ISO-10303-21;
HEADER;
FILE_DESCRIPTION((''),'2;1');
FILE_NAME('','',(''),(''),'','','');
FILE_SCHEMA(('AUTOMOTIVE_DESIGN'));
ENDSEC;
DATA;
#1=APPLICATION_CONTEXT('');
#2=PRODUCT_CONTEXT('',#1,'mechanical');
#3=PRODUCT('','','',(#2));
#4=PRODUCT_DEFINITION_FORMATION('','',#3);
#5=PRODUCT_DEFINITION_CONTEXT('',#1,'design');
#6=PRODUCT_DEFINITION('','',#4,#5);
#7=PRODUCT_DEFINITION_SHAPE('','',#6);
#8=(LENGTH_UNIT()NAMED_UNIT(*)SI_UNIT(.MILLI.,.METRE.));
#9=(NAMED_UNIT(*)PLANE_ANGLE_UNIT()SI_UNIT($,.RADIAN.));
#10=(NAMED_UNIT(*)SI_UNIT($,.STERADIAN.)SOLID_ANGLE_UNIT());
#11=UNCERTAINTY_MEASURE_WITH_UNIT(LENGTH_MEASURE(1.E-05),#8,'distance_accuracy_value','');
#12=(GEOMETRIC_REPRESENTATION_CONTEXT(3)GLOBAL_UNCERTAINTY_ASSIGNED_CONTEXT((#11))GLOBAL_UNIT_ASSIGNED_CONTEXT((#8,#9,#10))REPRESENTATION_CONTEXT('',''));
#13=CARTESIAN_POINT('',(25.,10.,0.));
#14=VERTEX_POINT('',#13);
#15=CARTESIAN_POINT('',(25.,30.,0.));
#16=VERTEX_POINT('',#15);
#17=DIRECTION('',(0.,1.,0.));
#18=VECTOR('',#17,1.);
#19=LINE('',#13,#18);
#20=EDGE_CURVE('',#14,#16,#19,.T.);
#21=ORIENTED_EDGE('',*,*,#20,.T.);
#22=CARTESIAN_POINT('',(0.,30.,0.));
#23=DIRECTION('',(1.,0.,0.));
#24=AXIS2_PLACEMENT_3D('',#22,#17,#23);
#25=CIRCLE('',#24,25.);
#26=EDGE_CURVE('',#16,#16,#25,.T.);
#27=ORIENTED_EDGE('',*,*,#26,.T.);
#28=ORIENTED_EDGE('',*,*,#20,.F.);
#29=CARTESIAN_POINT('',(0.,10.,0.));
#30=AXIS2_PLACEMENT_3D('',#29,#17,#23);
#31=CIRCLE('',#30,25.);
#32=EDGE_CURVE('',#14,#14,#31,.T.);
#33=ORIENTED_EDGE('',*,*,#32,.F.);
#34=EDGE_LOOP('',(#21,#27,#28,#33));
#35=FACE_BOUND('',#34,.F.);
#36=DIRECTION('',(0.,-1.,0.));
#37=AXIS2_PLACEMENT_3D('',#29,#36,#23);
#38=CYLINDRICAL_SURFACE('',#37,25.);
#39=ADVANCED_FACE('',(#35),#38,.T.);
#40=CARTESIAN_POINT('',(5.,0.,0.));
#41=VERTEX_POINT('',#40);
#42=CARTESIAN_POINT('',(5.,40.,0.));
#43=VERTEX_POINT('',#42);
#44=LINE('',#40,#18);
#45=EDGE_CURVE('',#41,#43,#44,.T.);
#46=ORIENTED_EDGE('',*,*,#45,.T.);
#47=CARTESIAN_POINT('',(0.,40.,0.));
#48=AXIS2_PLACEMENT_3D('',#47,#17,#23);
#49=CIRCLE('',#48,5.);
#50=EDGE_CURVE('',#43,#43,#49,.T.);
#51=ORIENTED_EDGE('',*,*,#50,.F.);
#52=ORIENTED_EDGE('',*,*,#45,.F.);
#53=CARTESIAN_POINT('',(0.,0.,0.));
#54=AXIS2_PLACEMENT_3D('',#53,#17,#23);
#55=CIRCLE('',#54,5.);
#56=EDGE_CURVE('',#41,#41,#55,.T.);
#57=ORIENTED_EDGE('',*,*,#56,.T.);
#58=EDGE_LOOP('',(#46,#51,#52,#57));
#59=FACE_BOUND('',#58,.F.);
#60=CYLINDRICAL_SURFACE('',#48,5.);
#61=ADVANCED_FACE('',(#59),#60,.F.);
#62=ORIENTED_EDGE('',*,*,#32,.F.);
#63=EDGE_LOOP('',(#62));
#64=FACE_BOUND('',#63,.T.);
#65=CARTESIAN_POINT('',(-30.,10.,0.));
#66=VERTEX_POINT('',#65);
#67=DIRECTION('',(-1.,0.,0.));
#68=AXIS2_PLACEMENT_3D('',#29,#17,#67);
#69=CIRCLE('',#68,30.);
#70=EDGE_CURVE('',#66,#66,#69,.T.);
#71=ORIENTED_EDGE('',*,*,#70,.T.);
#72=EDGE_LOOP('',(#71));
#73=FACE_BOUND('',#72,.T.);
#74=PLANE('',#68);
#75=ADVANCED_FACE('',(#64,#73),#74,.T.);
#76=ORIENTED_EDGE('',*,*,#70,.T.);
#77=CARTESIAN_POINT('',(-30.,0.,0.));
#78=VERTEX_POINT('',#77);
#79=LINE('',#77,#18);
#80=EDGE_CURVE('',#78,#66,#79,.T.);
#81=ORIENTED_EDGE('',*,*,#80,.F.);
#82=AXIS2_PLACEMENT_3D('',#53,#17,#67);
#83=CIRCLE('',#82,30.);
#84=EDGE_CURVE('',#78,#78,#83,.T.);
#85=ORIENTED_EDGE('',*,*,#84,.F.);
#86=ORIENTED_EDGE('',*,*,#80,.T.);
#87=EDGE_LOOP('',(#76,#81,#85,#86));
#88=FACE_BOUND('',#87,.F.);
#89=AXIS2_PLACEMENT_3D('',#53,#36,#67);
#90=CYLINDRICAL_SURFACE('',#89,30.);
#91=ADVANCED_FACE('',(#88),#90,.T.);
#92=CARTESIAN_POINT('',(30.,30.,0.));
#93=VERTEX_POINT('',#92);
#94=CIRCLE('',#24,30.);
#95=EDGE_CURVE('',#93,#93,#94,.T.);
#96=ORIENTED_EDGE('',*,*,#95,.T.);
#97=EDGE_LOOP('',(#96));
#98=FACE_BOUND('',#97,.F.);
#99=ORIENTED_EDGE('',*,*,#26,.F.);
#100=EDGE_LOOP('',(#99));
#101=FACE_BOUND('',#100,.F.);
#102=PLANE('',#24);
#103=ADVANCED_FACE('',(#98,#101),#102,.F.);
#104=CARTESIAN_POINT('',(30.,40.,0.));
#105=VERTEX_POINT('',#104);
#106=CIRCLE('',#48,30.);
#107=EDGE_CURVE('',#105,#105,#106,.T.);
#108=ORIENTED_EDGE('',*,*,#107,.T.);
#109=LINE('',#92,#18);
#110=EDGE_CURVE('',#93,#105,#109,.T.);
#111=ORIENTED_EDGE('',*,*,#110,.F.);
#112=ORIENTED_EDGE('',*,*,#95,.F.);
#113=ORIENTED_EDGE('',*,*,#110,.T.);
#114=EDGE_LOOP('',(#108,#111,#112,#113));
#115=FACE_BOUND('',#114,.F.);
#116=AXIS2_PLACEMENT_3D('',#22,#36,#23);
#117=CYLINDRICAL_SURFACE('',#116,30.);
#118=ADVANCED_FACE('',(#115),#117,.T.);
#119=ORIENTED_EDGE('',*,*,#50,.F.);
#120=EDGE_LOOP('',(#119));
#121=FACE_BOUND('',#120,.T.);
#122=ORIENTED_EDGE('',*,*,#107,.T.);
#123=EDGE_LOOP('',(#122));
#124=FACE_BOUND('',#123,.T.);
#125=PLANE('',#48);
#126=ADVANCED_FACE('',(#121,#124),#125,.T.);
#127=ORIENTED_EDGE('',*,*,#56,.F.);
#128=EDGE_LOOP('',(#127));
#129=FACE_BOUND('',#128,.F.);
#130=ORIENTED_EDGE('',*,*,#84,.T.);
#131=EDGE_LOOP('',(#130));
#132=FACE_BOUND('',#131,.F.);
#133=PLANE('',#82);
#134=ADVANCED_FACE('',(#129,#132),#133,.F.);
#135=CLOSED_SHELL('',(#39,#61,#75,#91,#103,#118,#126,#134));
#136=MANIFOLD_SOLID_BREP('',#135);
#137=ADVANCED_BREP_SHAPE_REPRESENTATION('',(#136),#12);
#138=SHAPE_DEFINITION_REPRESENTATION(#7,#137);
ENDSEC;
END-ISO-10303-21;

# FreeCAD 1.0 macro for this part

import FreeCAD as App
import Part
import Sketcher
from FreeCAD import Vector
Q = App.Units.Quantity

doc = App.newDocument("Part")
body = doc.addObject("PartDesign::Body", "Body")

# Sketch on XZ plane
sketch1 = body.newObject("Sketcher::SketchObject", "Sketch")
sketch1.AttachmentSupport = (doc.getObject("XZ_Plane"), [""])
sketch1.MapMode = "FlatFace"
sketch1.addGeometry(Part.Circle(Vector(0, 0, 0), Vector(0, 0, 1), 30), False)
sketch1.addConstraint(Sketcher.Constraint("Coincident", 0, 3, -1, 1))
sketch1.addConstraint(Sketcher.Constraint("Diameter", 0, Q("60 mm")))
pad1 = body.newObject("PartDesign::Pad", "Pad")
pad1.Profile = sketch1
pad1.Length = 10
pad1.Reversed = True

# Sketch on XZ plane
sketch2 = body.newObject("Sketcher::SketchObject", "Sketch001")
sketch2.AttachmentSupport = (doc.getObject("XZ_Plane"), [""])
sketch2.MapMode = "FlatFace"
sketch2.AttachmentOffset = App.Placement(Vector(0, 0, -10), App.Rotation())
sketch2.addGeometry(Part.Circle(Vector(0, 0, 0), Vector(0, 0, 1), 5), False)
sketch2.addConstraint(Sketcher.Constraint("Coincident", 0, 3, -1, 1))
sketch2.addConstraint(Sketcher.Constraint("Diameter", 0, Q("10 mm")))
pocket1 = body.newObject("PartDesign::Pocket", "Pocket")
pocket1.Profile = sketch2
pocket1.Type = "ThroughAll"
pocket1.Reversed = True

# Sketch on XZ plane
sketch3 = body.newObject("Sketcher::SketchObject", "Sketch002")
sketch3.AttachmentSupport = (doc.getObject("XZ_Plane"), [""])
sketch3.MapMode = "FlatFace"
sketch3.AttachmentOffset = App.Placement(Vector(0, 0, -10), App.Rotation())
sketch3.addGeometry(Part.Circle(Vector(0, 0, 0), Vector(0, 0, 1), 25), False)
sketch3.addConstraint(Sketcher.Constraint("Coincident", 0, 3, -1, 1))
sketch3.addConstraint(Sketcher.Constraint("Diameter", 0, Q("50 mm")))
pad2 = body.newObject("PartDesign::Pad", "Pad001")
pad2.Profile = sketch3
pad2.Length = 20
pad2.Reversed = True

# Sketch on XZ plane
sketch4 = body.newObject("Sketcher::SketchObject", "Sketch003")
sketch4.AttachmentSupport = (doc.getObject("XZ_Plane"), [""])
sketch4.MapMode = "FlatFace"
sketch4.AttachmentOffset = App.Placement(Vector(0, 0, -30), App.Rotation())
sketch4.addGeometry(Part.Circle(Vector(0, 0, 0), Vector(0, 0, 1), 30), False)
sketch4.addConstraint(Sketcher.Constraint("Coincident", 0, 3, -1, 1))
sketch4.addConstraint(Sketcher.Constraint("Diameter", 0, Q("60 mm")))
pad3 = body.newObject("PartDesign::Pad", "Pad002")
pad3.Profile = sketch4
pad3.Length = 10
pad3.Reversed = True

# Sketch on XZ plane
sketch5 = body.newObject("Sketcher::SketchObject", "Sketch004")
sketch5.AttachmentSupport = (doc.getObject("XZ_Plane"), [""])
sketch5.MapMode = "FlatFace"
sketch5.AttachmentOffset = App.Placement(Vector(0, 0, -40), App.Rotation())
sketch5.addGeometry(Part.Circle(Vector(0, 0, 0), Vector(0, 0, 1), 5), False)
sketch5.addConstraint(Sketcher.Constraint("Coincident", 0, 3, -1, 1))
sketch5.addConstraint(Sketcher.Constraint("Diameter", 0, Q("10 mm")))
pocket2 = body.newObject("PartDesign::Pocket", "Pocket001")
pocket2.Profile = sketch5
pocket2.Type = "ThroughAll"
pocket2.Reversed = True

doc.recompute()
